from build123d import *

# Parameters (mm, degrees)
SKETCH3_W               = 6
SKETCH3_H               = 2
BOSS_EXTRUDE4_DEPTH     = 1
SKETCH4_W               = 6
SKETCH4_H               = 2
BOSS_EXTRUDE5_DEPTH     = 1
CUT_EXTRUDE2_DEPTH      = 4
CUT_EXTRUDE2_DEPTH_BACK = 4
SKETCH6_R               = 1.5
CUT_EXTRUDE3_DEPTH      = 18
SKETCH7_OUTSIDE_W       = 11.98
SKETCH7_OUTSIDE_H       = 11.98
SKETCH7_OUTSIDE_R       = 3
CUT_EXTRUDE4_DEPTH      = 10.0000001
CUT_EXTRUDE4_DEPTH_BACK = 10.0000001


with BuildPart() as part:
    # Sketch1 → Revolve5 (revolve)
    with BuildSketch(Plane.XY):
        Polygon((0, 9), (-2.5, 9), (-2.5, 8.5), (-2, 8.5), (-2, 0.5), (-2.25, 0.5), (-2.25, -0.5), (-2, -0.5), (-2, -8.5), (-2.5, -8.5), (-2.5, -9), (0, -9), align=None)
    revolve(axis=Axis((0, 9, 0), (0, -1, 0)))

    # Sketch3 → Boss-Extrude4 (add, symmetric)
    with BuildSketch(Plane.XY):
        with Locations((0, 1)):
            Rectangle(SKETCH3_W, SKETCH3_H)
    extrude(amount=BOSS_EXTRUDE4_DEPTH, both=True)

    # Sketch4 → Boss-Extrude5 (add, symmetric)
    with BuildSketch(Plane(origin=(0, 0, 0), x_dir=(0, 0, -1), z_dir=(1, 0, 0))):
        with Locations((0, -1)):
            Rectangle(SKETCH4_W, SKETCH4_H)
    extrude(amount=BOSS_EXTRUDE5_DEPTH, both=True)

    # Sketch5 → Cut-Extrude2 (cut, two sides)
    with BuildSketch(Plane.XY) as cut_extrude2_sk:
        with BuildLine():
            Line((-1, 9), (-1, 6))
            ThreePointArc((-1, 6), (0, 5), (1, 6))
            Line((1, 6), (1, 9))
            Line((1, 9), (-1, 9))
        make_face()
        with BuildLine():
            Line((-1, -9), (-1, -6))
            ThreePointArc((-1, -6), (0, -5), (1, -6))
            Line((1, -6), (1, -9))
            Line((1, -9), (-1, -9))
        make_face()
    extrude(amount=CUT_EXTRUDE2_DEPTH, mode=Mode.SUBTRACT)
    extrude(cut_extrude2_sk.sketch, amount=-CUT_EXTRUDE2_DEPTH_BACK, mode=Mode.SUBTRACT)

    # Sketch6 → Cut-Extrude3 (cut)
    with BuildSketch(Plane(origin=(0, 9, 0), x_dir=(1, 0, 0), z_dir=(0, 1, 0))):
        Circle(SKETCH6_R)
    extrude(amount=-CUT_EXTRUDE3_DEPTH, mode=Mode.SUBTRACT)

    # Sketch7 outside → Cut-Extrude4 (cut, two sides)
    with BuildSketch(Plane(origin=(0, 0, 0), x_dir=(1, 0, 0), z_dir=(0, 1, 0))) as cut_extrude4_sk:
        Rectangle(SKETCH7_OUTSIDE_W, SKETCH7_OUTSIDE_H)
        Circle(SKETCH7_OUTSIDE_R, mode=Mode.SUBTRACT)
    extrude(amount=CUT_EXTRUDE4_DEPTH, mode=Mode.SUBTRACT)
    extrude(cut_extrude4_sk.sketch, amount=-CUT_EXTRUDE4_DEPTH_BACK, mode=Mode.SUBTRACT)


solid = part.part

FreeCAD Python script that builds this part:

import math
import FreeCAD as App
import Part
import Sketcher
from FreeCAD import Vector

doc = App.newDocument("Part")
body = doc.addObject("PartDesign::Body", "Body")

sketch1 = body.newObject("Sketcher::SketchObject", "Sketch")
sketch1.AttachmentSupport = (doc.getObject("XY_Plane"), [""])
sketch1.MapMode = "FlatFace"
sketch1.addGeometry([
    Part.LineSegment(Vector(0, 9, 0), Vector(-2.5, 9, 0)),
    Part.LineSegment(Vector(-2.5, 9, 0), Vector(-2.5, 8.5, 0)),
    Part.LineSegment(Vector(-2.5, 8.5, 0), Vector(-2, 8.5, 0)),
    Part.LineSegment(Vector(-2, 8.5, 0), Vector(-2, 0.5, 0)),
    Part.LineSegment(Vector(-2, 0.5, 0), Vector(-2.25, 0.5, 0)),
    Part.LineSegment(Vector(-2.25, 0.5, 0), Vector(-2.25, -0.5, 0)),
    Part.LineSegment(Vector(-2.25, -0.5, 0), Vector(-2, -0.5, 0)),
    Part.LineSegment(Vector(-2, -0.5, 0), Vector(-2, -8.5, 0)),
    Part.LineSegment(Vector(-2, -8.5, 0), Vector(-2.5, -8.5, 0)),
    Part.LineSegment(Vector(-2.5, -8.5, 0), Vector(-2.5, -9, 0)),
    Part.LineSegment(Vector(-2.5, -9, 0), Vector(0, -9, 0)),
    Part.LineSegment(Vector(0, -9, 0), Vector(0, 9, 0)),
], False)
sketch1.addConstraint([
    Sketcher.Constraint("Coincident", 0, 2, 1, 1),
    Sketcher.Constraint("Coincident", 1, 2, 2, 1),
    Sketcher.Constraint("Coincident", 2, 2, 3, 1),
    Sketcher.Constraint("Coincident", 3, 2, 4, 1),
    Sketcher.Constraint("Coincident", 4, 2, 5, 1),
    Sketcher.Constraint("Coincident", 5, 2, 6, 1),
    Sketcher.Constraint("Coincident", 6, 2, 7, 1),
    Sketcher.Constraint("Coincident", 7, 2, 8, 1),
    Sketcher.Constraint("Coincident", 8, 2, 9, 1),
    Sketcher.Constraint("Coincident", 9, 2, 10, 1),
    Sketcher.Constraint("Coincident", 10, 2, 11, 1),
    Sketcher.Constraint("Coincident", 11, 2, 0, 1),
    Sketcher.Constraint("Horizontal", 0),
    Sketcher.Constraint("Vertical", 1),
    Sketcher.Constraint("Horizontal", 2),
    Sketcher.Constraint("Vertical", 3),
    Sketcher.Constraint("Horizontal", 4),
    Sketcher.Constraint("Vertical", 5),
    Sketcher.Constraint("Horizontal", 6),
    Sketcher.Constraint("Vertical", 7),
    Sketcher.Constraint("Horizontal", 8),
    Sketcher.Constraint("Vertical", 9),
    Sketcher.Constraint("Horizontal", 10),
    Sketcher.Constraint("Vertical", 11),
    Sketcher.Constraint("Symmetric", 10, 2, 11, 2, -1, 1),
    Sketcher.Constraint("Symmetric", 3, 2, 6, 2, -1),
    Sketcher.Constraint("Symmetric", 1, 2, 8, 2, -1),
    Sketcher.Constraint("Equal", 8, 1),
    Sketcher.Constraint("DistanceY", 3, 2, 3, 1, 8.0),
    Sketcher.Constraint("DistanceY", 5, 2, 5, 1, 1.0),
    Sketcher.Constraint("DistanceY", 11, 1, 11, 2, 18.0),
    Sketcher.Constraint("DistanceX", 0, 2, 0, 1, 2.5),
    Sketcher.Constraint("DistanceX", 4, 2, 4, 1, 0.25),
])
revolution = body.newObject("PartDesign::Revolution", "Revolution")
revolution.Profile = sketch1
revolution.ReferenceAxis = (sketch1, ["V_Axis"])
revolution.Angle = 360

sketch2 = body.newObject("Sketcher::SketchObject", "Sketch001")
sketch2.AttachmentSupport = (doc.getObject("XY_Plane"), [""])
sketch2.MapMode = "FlatFace"
sketch2.addGeometry([
    Part.LineSegment(Vector(-3, 2, 0), Vector(-3, 0, 0)),
    Part.LineSegment(Vector(-3, 0, 0), Vector(3, 0, 0)),
    Part.LineSegment(Vector(3, 0, 0), Vector(3, 2, 0)),
    Part.LineSegment(Vector(3, 2, 0), Vector(-3, 2, 0)),
], False)
sketch2.addConstraint([
    Sketcher.Constraint("Coincident", 0, 2, 1, 1),
    Sketcher.Constraint("Coincident", 1, 2, 2, 1),
    Sketcher.Constraint("Coincident", 2, 2, 3, 1),
    Sketcher.Constraint("Coincident", 3, 2, 0, 1),
    Sketcher.Constraint("Vertical", 0),
    Sketcher.Constraint("Horizontal", 1),
    Sketcher.Constraint("Vertical", 2),
    Sketcher.Constraint("Horizontal", 3),
    Sketcher.Constraint("Symmetric", 0, 2, 1, 2, -1, 1),
    Sketcher.Constraint("DistanceX", 1, 1, 1, 2, 6.0),
    Sketcher.Constraint("DistanceY", 0, 2, 0, 1, 2.0),
])
pad1 = body.newObject("PartDesign::Pad", "Pad")
pad1.Profile = sketch2
pad1.Length = 2
pad1.Midplane = True

sketch3 = body.newObject("Sketcher::SketchObject", "Sketch002")
sketch3.AttachmentSupport = (doc.getObject("YZ_Plane"), [""])
sketch3.MapMode = "FlatFace"
sketch3.addGeometry([
    Part.LineSegment(Vector(0, 3, 0), Vector(-2, 3, 0)),
    Part.LineSegment(Vector(-2, 3, 0), Vector(-2, -3, 0)),
    Part.LineSegment(Vector(-2, -3, 0), Vector(0, -3, 0)),
    Part.LineSegment(Vector(0, -3, 0), Vector(0, 3, 0)),
], False)
sketch3.addConstraint([
    Sketcher.Constraint("Coincident", 0, 2, 1, 1),
    Sketcher.Constraint("Coincident", 1, 2, 2, 1),
    Sketcher.Constraint("Coincident", 2, 2, 3, 1),
    Sketcher.Constraint("Coincident", 3, 2, 0, 1),
    Sketcher.Constraint("Horizontal", 0),
    Sketcher.Constraint("Vertical", 1),
    Sketcher.Constraint("Horizontal", 2),
    Sketcher.Constraint("Vertical", 3),
    Sketcher.Constraint("Symmetric", 2, 2, 3, 2, -1, 1),
    Sketcher.Constraint("DistanceX", 0, 2, 0, 1, 2.0),
    Sketcher.Constraint("DistanceY", 1, 2, 1, 1, 6.0),
])
pad2 = body.newObject("PartDesign::Pad", "Pad001")
pad2.Profile = sketch3
pad2.Length = 2
pad2.Midplane = True

sketch4 = body.newObject("Sketcher::SketchObject", "Sketch003")
sketch4.AttachmentSupport = (doc.getObject("XY_Plane"), [""])
sketch4.MapMode = "FlatFace"
sketch4.addGeometry([
    Part.LineSegment(Vector(-1, 9, 0), Vector(-1, 6, 0)),
    Part.ArcOfCircle(Part.Circle(Vector(0, 6, 0), Vector(0, 0, 1), 1), math.radians(180), math.radians(360)),
    Part.LineSegment(Vector(1, 6, 0), Vector(1, 9, 0)),
    Part.LineSegment(Vector(1, 9, 0), Vector(-1, 9, 0)),
    Part.LineSegment(Vector(-1, -6, 0), Vector(-1, -9, 0)),
    Part.LineSegment(Vector(-1, -9, 0), Vector(1, -9, 0)),
    Part.LineSegment(Vector(1, -9, 0), Vector(1, -6, 0)),
    Part.ArcOfCircle(Part.Circle(Vector(0, -6, 0), Vector(0, 0, 1), 1), math.radians(0), math.radians(180)),
], False)
sketch4.addConstraint([
    Sketcher.Constraint("Tangent", 0, 2, 1, 1),
    Sketcher.Constraint("Tangent", 1, 2, 2, 1),
    Sketcher.Constraint("Coincident", 2, 2, 3, 1),
    Sketcher.Constraint("Coincident", 3, 2, 0, 1),
    Sketcher.Constraint("Coincident", 4, 2, 5, 1),
    Sketcher.Constraint("Coincident", 5, 2, 6, 1),
    Sketcher.Constraint("Tangent", 6, 2, 7, 1),
    Sketcher.Constraint("Tangent", 7, 2, 4, 1),
    Sketcher.Constraint("Vertical", 0),
    Sketcher.Constraint("Vertical", 2),
    Sketcher.Constraint("Horizontal", 3),
    Sketcher.Constraint("Vertical", 4),
    Sketcher.Constraint("Horizontal", 5),
    Sketcher.Constraint("Vertical", 6),
    Sketcher.Constraint("Equal", 1, 7),
    Sketcher.Constraint("Symmetric", 1, 3, 7, 3, -1, 1),
    Sketcher.Constraint("Symmetric", 3, 2, 4, 2, -1),
    Sketcher.Constraint("Radius", 1, 1.0),
    Sketcher.Constraint("DistanceY", 0, 2, 0, 1, 3.0),
    Sketcher.Constraint("DistanceY", -1, 1, 1, 3, 6.0),
])
pocket1 = body.newObject("PartDesign::Pocket", "Pocket")
pocket1.Profile = sketch4
pocket1.Type = "ThroughAll"
pocket1.Midplane = True

sketch5 = body.newObject("Sketcher::SketchObject", "Sketch004")
sketch5.AttachmentSupport = (doc.getObject("XZ_Plane"), [""])
sketch5.MapMode = "FlatFace"
sketch5.AttachmentOffset = App.Placement(Vector(0, 0, -9), App.Rotation())
sketch5.addGeometry(Part.Circle(Vector(0, 0, 0), Vector(0, 0, 1), 1.5), False)
sketch5.addConstraint([
    Sketcher.Constraint("Coincident", 0, 3, -1, 1),
    Sketcher.Constraint("Diameter", 0, 3.0),
])
pocket2 = body.newObject("PartDesign::Pocket", "Pocket001")
pocket2.Profile = sketch5
pocket2.Length = 18
pocket2.Reversed = True

sketch6 = body.newObject("Sketcher::SketchObject", "Sketch005")
sketch6.AttachmentSupport = (doc.getObject("XZ_Plane"), [""])
sketch6.MapMode = "FlatFace"
sketch6.addGeometry([
    Part.LineSegment(Vector(-5.99, -5.99, 0), Vector(-5.99, 5.99, 0)),
    Part.LineSegment(Vector(-5.99, 5.99, 0), Vector(5.99, 5.99, 0)),
    Part.LineSegment(Vector(5.99, 5.99, 0), Vector(5.99, -5.99, 0)),
    Part.LineSegment(Vector(5.99, -5.99, 0), Vector(-5.99, -5.99, 0)),
    Part.Circle(Vector(0, 0, 0), Vector(0, 0, 1), 3),
], False)
sketch6.addConstraint([
    Sketcher.Constraint("Coincident", 0, 2, 1, 1),
    Sketcher.Constraint("Coincident", 1, 2, 2, 1),
    Sketcher.Constraint("Coincident", 2, 2, 3, 1),
    Sketcher.Constraint("Coincident", 3, 2, 0, 1),
    Sketcher.Constraint("Vertical", 0),
    Sketcher.Constraint("Horizontal", 1),
    Sketcher.Constraint("Vertical", 2),
    Sketcher.Constraint("Horizontal", 3),
    Sketcher.Constraint("Coincident", 4, 3, -1, 1),
    Sketcher.Constraint("Symmetric", 0, 2, 2, 2, -1, 1),
    Sketcher.Constraint("Equal", 3, 0),
    Sketcher.Constraint("Diameter", 4, 6.0),
    Sketcher.Constraint("DistanceX", 1, 1, 1, 2, 11.98),
])
pocket3 = body.newObject("PartDesign::Pocket", "Pocket002")
pocket3.Profile = sketch6
pocket3.Type = "ThroughAll"
pocket3.Midplane = True

doc.recompute()
